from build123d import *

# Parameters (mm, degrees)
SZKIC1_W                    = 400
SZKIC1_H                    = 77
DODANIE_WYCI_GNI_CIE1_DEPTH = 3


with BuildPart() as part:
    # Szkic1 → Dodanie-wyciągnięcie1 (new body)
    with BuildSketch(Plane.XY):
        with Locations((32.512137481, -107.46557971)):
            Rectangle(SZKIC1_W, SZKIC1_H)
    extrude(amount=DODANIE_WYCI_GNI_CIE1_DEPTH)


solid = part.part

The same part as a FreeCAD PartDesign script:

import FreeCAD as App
import Part
import Sketcher

V = App.Vector

doc = App.newDocument("Part")
body = doc.addObject("PartDesign::Body", "Body")

# Sketch on XY plane
sketch1 = body.newObject("Sketcher::SketchObject", "Sketch")
sketch1.AttachmentSupport = (doc.getObject("XY_Plane"), [""])
sketch1.MapMode = "FlatFace"
sketch1.addGeometry([
    Part.LineSegment(V(-167.487863, -68.96558, 0), V(-167.487863, -145.96558, 0)),
    Part.LineSegment(V(-167.487863, -145.96558, 0), V(232.512137, -145.96558, 0)),
    Part.LineSegment(V(232.512137, -145.96558, 0), V(232.512137, -68.96558, 0)),
    Part.LineSegment(V(232.512137, -68.96558, 0), V(-167.487863, -68.96558, 0)),
], False)
sketch1.addConstraint([
    Sketcher.Constraint("Coincident", 0, 2, 1, 1),
    Sketcher.Constraint("Coincident", 1, 2, 2, 1),
    Sketcher.Constraint("Coincident", 2, 2, 3, 1),
    Sketcher.Constraint("Coincident", 3, 2, 0, 1),
    Sketcher.Constraint("Vertical", 0),
    Sketcher.Constraint("Horizontal", 1),
    Sketcher.Constraint("Vertical", 2),
    Sketcher.Constraint("Horizontal", 3),
    Sketcher.Constraint("DistanceX", 1, 1, 1, 2, 400.0),
    Sketcher.Constraint("DistanceY", 0, 2, 0, 1, 77.0),
    Sketcher.Constraint("DistanceY", 0, 2, -1, 1, 145.96558),
    Sketcher.Constraint("DistanceX", 0, 2, -1, 1, 167.487863),
])
pad1 = body.newObject("PartDesign::Pad", "Pad")
pad1.Profile = sketch1
pad1.Length = 3

doc.recompute()
